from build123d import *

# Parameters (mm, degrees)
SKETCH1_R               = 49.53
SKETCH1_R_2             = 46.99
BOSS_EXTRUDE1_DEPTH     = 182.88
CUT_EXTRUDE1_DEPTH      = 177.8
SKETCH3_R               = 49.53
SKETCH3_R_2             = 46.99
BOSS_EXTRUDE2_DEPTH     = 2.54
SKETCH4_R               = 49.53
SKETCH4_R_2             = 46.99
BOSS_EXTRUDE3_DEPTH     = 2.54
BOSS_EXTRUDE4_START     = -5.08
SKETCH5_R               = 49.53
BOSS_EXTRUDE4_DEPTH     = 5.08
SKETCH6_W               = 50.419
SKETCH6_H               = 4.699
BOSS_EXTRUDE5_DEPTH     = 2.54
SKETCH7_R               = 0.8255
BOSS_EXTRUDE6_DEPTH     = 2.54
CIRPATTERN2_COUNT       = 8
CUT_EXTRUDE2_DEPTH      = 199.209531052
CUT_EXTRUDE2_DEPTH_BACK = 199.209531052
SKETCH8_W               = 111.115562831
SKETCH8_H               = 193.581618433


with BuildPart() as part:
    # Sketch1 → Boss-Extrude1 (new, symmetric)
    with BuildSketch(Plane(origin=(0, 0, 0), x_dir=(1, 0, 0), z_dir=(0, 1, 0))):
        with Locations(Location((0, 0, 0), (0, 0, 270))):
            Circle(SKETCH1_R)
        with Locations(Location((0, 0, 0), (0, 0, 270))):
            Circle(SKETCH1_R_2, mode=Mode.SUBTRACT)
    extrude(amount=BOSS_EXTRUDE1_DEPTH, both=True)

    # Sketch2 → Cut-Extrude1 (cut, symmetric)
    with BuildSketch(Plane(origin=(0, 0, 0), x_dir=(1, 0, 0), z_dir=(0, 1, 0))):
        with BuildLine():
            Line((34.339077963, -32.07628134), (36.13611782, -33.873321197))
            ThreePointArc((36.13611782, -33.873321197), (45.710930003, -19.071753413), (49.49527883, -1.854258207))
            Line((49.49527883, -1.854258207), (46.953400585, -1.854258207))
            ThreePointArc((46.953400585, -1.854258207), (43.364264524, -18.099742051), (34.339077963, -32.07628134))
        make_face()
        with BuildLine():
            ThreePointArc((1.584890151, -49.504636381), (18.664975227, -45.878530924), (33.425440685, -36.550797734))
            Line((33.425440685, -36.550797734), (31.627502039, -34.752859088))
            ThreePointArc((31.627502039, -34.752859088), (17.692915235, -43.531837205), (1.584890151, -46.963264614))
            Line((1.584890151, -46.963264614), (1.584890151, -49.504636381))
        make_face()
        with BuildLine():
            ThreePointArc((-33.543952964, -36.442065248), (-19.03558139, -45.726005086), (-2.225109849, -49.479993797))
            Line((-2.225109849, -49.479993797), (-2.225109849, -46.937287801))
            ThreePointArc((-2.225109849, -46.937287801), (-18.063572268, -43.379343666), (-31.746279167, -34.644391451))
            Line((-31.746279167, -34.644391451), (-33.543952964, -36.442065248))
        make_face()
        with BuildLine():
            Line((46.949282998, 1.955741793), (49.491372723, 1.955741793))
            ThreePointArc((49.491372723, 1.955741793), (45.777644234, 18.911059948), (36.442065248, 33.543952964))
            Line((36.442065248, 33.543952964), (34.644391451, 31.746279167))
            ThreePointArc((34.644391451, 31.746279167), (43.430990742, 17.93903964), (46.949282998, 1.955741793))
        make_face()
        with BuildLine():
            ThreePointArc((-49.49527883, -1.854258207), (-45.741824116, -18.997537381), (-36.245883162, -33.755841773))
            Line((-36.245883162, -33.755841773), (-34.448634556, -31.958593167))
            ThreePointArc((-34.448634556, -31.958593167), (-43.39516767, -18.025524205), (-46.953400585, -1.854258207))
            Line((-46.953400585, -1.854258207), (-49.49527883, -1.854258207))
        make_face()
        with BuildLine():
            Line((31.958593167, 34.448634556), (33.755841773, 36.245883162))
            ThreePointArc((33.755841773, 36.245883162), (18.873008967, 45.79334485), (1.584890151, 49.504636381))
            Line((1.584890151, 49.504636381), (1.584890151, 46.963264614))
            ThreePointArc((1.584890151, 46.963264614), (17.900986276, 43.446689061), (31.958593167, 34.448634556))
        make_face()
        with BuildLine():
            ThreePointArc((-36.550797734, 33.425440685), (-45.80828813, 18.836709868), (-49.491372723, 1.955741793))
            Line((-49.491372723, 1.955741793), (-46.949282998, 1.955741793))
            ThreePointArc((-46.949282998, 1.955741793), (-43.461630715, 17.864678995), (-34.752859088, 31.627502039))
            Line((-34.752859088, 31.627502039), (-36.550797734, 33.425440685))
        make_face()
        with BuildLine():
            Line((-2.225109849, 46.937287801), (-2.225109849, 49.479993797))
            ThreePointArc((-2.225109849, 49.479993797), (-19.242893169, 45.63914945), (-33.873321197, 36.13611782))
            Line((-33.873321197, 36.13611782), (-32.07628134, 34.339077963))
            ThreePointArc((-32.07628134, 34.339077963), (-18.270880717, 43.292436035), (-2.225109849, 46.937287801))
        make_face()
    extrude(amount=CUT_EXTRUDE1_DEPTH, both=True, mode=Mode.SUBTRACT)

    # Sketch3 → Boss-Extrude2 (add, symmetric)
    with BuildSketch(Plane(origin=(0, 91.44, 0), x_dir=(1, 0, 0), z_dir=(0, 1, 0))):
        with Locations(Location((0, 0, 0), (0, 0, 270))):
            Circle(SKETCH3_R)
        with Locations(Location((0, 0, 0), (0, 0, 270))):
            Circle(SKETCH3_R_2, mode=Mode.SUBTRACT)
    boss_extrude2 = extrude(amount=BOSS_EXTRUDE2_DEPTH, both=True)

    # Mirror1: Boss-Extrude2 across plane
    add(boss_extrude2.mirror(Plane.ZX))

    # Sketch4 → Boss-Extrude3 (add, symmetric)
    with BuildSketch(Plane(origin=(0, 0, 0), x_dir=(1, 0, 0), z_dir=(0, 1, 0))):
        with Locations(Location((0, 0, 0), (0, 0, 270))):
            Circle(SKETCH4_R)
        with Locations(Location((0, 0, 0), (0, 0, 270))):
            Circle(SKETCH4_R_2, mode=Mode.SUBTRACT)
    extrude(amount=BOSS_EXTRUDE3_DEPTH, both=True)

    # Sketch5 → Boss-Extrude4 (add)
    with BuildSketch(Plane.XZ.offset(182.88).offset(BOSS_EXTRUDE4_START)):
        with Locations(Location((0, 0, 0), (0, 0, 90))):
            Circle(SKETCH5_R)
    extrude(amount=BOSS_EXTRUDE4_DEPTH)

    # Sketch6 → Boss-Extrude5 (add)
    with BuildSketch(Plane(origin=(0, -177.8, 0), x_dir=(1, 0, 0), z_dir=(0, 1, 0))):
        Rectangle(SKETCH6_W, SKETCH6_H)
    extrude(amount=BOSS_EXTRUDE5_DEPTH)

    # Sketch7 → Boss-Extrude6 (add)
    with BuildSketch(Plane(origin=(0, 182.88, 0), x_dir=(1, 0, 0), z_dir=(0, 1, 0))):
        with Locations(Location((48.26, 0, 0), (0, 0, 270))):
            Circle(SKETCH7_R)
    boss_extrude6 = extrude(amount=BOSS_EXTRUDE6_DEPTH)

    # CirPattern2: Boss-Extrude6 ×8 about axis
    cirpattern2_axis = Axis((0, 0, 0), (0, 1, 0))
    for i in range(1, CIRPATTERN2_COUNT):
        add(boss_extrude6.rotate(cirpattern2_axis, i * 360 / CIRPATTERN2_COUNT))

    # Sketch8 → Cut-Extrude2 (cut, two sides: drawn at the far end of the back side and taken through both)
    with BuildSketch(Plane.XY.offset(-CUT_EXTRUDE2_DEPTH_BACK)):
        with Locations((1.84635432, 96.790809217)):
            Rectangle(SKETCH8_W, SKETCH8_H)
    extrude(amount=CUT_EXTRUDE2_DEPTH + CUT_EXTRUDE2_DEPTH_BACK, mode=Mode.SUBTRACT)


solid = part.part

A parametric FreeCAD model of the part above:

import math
import FreeCAD as App
import Part
import Sketcher
Q = App.Units.Quantity


def add_polygon(sketch, points):
    """Adds a closed chain of lines whose ends are joined by coincident constraints."""
    first, n = sketch.GeometryCount, len(points)
    for a, b in zip(points, points[1:] + points[:1]):
        sketch.addGeometry(Part.LineSegment(App.Vector(*a, 0), App.Vector(*b, 0)), False)
    for i in range(n):
        sketch.addConstraint(Sketcher.Constraint("Coincident", first + i, 2, first + (i + 1) % n, 1))

doc = App.newDocument("Part")
body = doc.addObject("PartDesign::Body", "Body")

# Sketch on XZ plane
sketch1 = body.newObject("Sketcher::SketchObject", "Sketch")
sketch1.AttachmentSupport = (doc.getObject("XZ_Plane"), [""])
sketch1.MapMode = "FlatFace"
sketch1.addGeometry([
    Part.Circle(App.Vector(0, 0, 0), App.Vector(0, 0, 1), 49.53),
    Part.Circle(App.Vector(0, 0, 0), App.Vector(0, 0, 1), 46.99),
], False)
sketch1.addConstraint([
    Sketcher.Constraint("Coincident", 0, 3, -1, 1),
    Sketcher.Constraint("Coincident", 1, 3, -1, 1),
    Sketcher.Constraint("Diameter", 0, Q("3.9 in")),
    Sketcher.Constraint("Diameter", 1, Q("3.7 in")),
])
pad1 = body.newObject("PartDesign::Pad", "Pad")
pad1.Profile = sketch1
pad1.Length = Q("14.4 in")
pad1.Midplane = True

# Sketch on XZ plane
sketch2 = body.newObject("Sketcher::SketchObject", "Sketch001")
sketch2.AttachmentSupport = (doc.getObject("XZ_Plane"), [""])
sketch2.MapMode = "FlatFace"
sketch2.addGeometry([
    Part.LineSegment(App.Vector(34.339078, 32.076281, 0), App.Vector(36.136118, 33.873321, 0)),  # 0
    Part.ArcOfCircle(Part.Circle(App.Vector(0, 0, 0), App.Vector(0, 0, 1), 49.53), math.radians(2.145488), math.radians(43.14877)),  # 1
    Part.LineSegment(App.Vector(49.495279, 1.854258, 0), App.Vector(46.953401, 1.854258, 0)),  # 2
    Part.ArcOfCircle(Part.Circle(App.Vector(0, 0, 0), App.Vector(0, 0, 1), 46.99), math.radians(2.261519), math.radians(43.048666)),  # 3
    Part.ArcOfCircle(Part.Circle(App.Vector(0, 0, 0), App.Vector(0, 0, 1), 49.53), math.radians(47.557309), math.radians(88.166303)),  # 4
    Part.LineSegment(App.Vector(33.425441, 36.550798, 0), App.Vector(31.627502, 34.752859, 0)),  # 5
    Part.ArcOfCircle(Part.Circle(App.Vector(0, 0, 0), App.Vector(0, 0, 1), 46.99), math.radians(47.695641), math.radians(88.067147)),  # 6
    Part.LineSegment(App.Vector(1.58489, 46.963265, 0), App.Vector(1.58489, 49.504636, 0)),  # 7
    Part.ArcOfCircle(Part.Circle(App.Vector(0, 0, 0), App.Vector(0, 0, 1), 49.53), math.radians(92.57485), math.radians(132.628744)),  # 8
    Part.LineSegment(App.Vector(-2.22511, 49.479994, 0), App.Vector(-2.22511, 46.937288, 0)),  # 9
    Part.ArcOfCircle(Part.Circle(App.Vector(0, 0, 0), App.Vector(0, 0, 1), 46.99), math.radians(92.714133), math.radians(132.500488)),  # 10
    Part.LineSegment(App.Vector(-31.746279, 34.644391, 0), App.Vector(-33.543953, 36.442065, 0)),  # 11
    Part.LineSegment(App.Vector(46.949283, -1.955742, 0), App.Vector(49.491373, -1.955742, 0)),  # 12
    Part.ArcOfCircle(Part.Circle(App.Vector(0, 0, 0), App.Vector(0, 0, 1), 49.53), math.radians(-42.628744), math.radians(-2.26297)),  # 13
    Part.LineSegment(App.Vector(36.442065, -33.543953, 0), App.Vector(34.644391, -31.746279, 0)),  # 14
    Part.ArcOfCircle(Part.Circle(App.Vector(0, 0, 0), App.Vector(0, 0, 1), 46.99), math.radians(-42.500488), math.radians(-2.385361)),  # 15
    Part.ArcOfCircle(Part.Circle(App.Vector(0, 0, 0), App.Vector(0, 0, 1), 49.53), math.radians(137.037217), math.radians(177.854512)),  # 16
    Part.LineSegment(App.Vector(-36.245883, 33.755842, 0), App.Vector(-34.448635, 31.958593, 0)),  # 17
    Part.ArcOfCircle(Part.Circle(App.Vector(0, 0, 0), App.Vector(0, 0, 1), 46.99), math.radians(137.147388), math.radians(177.738481)),  # 18
    Part.LineSegment(App.Vector(-46.953401, 1.854258, 0), App.Vector(-49.495279, 1.854258, 0)),  # 19
    Part.LineSegment(App.Vector(31.958593, -34.448635, 0), App.Vector(33.755842, -36.245883, 0)),  # 20
    Part.ArcOfCircle(Part.Circle(App.Vector(0, 0, 0), App.Vector(0, 0, 1), 49.53), math.radians(-88.166303), math.radians(-47.037217)),  # 21
    Part.LineSegment(App.Vector(1.58489, -49.504636, 0), App.Vector(1.58489, -46.963265, 0)),  # 22
    Part.ArcOfCircle(Part.Circle(App.Vector(0, 0, 0), App.Vector(0, 0, 1), 46.99), math.radians(-88.067147), math.radians(-47.147388)),  # 23
    Part.ArcOfCircle(Part.Circle(App.Vector(0, 0, 0), App.Vector(0, 0, 1), 49.53), math.radians(-177.73703), math.radians(-137.557309)),  # 24
    Part.LineSegment(App.Vector(-49.491373, -1.955742, 0), App.Vector(-46.949283, -1.955742, 0)),  # 25
    Part.ArcOfCircle(Part.Circle(App.Vector(0, 0, 0), App.Vector(0, 0, 1), 46.99), math.radians(-177.614639), math.radians(-137.695641)),  # 26
    Part.LineSegment(App.Vector(-34.752859, -31.627502, 0), App.Vector(-36.550798, -33.425441, 0)),  # 27
    Part.LineSegment(App.Vector(-2.22511, -46.937288, 0), App.Vector(-2.22511, -49.479994, 0)),  # 28
    Part.ArcOfCircle(Part.Circle(App.Vector(0, 0, 0), App.Vector(0, 0, 1), 49.53), math.radians(-133.14877), math.radians(-92.57485)),  # 29
    Part.LineSegment(App.Vector(-33.873321, -36.136118, 0), App.Vector(-32.076281, -34.339078, 0)),  # 30
    Part.ArcOfCircle(Part.Circle(App.Vector(0, 0, 0), App.Vector(0, 0, 1), 46.99), math.radians(-133.048666), math.radians(-92.714133)),  # 31
], False)
sketch2.addConstraint([
    Sketcher.Constraint("Coincident", 0, 2, 1, 2),
    Sketcher.Constraint("Coincident", 1, 1, 2, 1),
    Sketcher.Constraint("Coincident", 2, 2, 3, 1),
    Sketcher.Constraint("Coincident", 3, 2, 0, 1),
    Sketcher.Constraint("Coincident", 4, 1, 5, 1),
    Sketcher.Constraint("Coincident", 5, 2, 6, 1),
    Sketcher.Constraint("Coincident", 6, 2, 7, 1),
    Sketcher.Constraint("Coincident", 7, 2, 4, 2),
    Sketcher.Constraint("Coincident", 8, 1, 9, 1),
    Sketcher.Constraint("Coincident", 9, 2, 10, 1),
    Sketcher.Constraint("Coincident", 10, 2, 11, 1),
    Sketcher.Constraint("Coincident", 11, 2, 8, 2),
    Sketcher.Constraint("Coincident", 12, 2, 13, 2),
    Sketcher.Constraint("Coincident", 13, 1, 14, 1),
    Sketcher.Constraint("Coincident", 14, 2, 15, 1),
    Sketcher.Constraint("Coincident", 15, 2, 12, 1),
    Sketcher.Constraint("Coincident", 16, 1, 17, 1),
    Sketcher.Constraint("Coincident", 17, 2, 18, 1),
    Sketcher.Constraint("Coincident", 18, 2, 19, 1),
    Sketcher.Constraint("Coincident", 19, 2, 16, 2),
    Sketcher.Constraint("Coincident", 20, 2, 21, 2),
    Sketcher.Constraint("Coincident", 21, 1, 22, 1),
    Sketcher.Constraint("Coincident", 22, 2, 23, 1),
    Sketcher.Constraint("Coincident", 23, 2, 20, 1),
    Sketcher.Constraint("Coincident", 24, 1, 25, 1),
    Sketcher.Constraint("Coincident", 25, 2, 26, 1),
    Sketcher.Constraint("Coincident", 26, 2, 27, 1),
    Sketcher.Constraint("Coincident", 27, 2, 24, 2),
    Sketcher.Constraint("Coincident", 28, 2, 29, 2),
    Sketcher.Constraint("Coincident", 29, 1, 30, 1),
    Sketcher.Constraint("Coincident", 30, 2, 31, 1),
    Sketcher.Constraint("Coincident", 31, 2, 28, 1),
    Sketcher.Constraint("Horizontal", 2),
    Sketcher.Constraint("Vertical", 7),
    Sketcher.Constraint("Vertical", 9),
    Sketcher.Constraint("Horizontal", 12),
    Sketcher.Constraint("Horizontal", 19),
    Sketcher.Constraint("Vertical", 22),
    Sketcher.Constraint("Horizontal", 25),
    Sketcher.Constraint("Vertical", 28),
    Sketcher.Constraint("Coincident", 1, 3, -1, 1),
    Sketcher.Constraint("Coincident", 3, 3, -1, 1),
    Sketcher.Constraint("Coincident", 4, 3, -1, 1),
    Sketcher.Constraint("Coincident", 6, 3, -1, 1),
    Sketcher.Constraint("Coincident", 8, 3, -1, 1),
    Sketcher.Constraint("Coincident", 10, 3, -1, 1),
    Sketcher.Constraint("Coincident", 13, 3, -1, 1),
    Sketcher.Constraint("Coincident", 15, 3, -1, 1),
    Sketcher.Constraint("Coincident", 16, 3, -1, 1),
    Sketcher.Constraint("Coincident", 18, 3, -1, 1),
    Sketcher.Constraint("Coincident", 21, 3, -1, 1),
    Sketcher.Constraint("Coincident", 23, 3, -1, 1),
    Sketcher.Constraint("Coincident", 24, 3, -1, 1),
    Sketcher.Constraint("Coincident", 26, 3, -1, 1),
    Sketcher.Constraint("Coincident", 29, 3, -1, 1),
    Sketcher.Constraint("Coincident", 31, 3, -1, 1),
    Sketcher.Constraint("Equal", 1, 4),
    Sketcher.Constraint("Equal", 3, 6),
    Sketcher.Constraint("Equal", 4, 8),
    Sketcher.Constraint("Equal", 6, 10),
    Sketcher.Constraint("Equal", 8, 13),
    Sketcher.Constraint("Equal", 10, 15),
    Sketcher.Constraint("Equal", 13, 16),
    Sketcher.Constraint("Equal", 15, 18),
    Sketcher.Constraint("Equal", 16, 21),
    Sketcher.Constraint("Equal", 18, 23),
    Sketcher.Constraint("Equal", 21, 24),
    Sketcher.Constraint("Equal", 23, 26),
    Sketcher.Constraint("Equal", 24, 29),
    Sketcher.Constraint("Equal", 26, 31),
    Sketcher.Constraint("Parallel", 0, 5),
    Sketcher.Constraint("Perpendicular", 5, 11),
    Sketcher.Constraint("Parallel", 11, 14),
    Sketcher.Constraint("Parallel", 14, 17),
    Sketcher.Constraint("Parallel", 17, 20),
    Sketcher.Constraint("Perpendicular", 20, 27),
    Sketcher.Constraint("Parallel", 27, 30),
    Sketcher.Constraint("Horizontal", 2, 2, 18, 2),
    Sketcher.Constraint("Horizontal", 15, 2, 24, 1),
    Sketcher.Constraint("Vertical", 7, 2, 21, 1),
    Sketcher.Constraint("Vertical", 9, 2, 28, 2),
    Sketcher.Constraint("Equal", 11, 14),
    Sketcher.Constraint("Radius", 1, Q("1.95 in")),
    Sketcher.Constraint("Radius", 3, Q("1.85 in")),
    Sketcher.Constraint("Angle", 0, Q("45 deg")),
    Sketcher.Constraint("DistanceX", 8, 1, 7, 2, Q("0.15 in")),
    Sketcher.Constraint("DistanceY", 12, 2, 1, 1, Q("0.15 in")),
    Sketcher.Constraint("DistanceX", -1, 1, 2, 2, Q("46.953401 mm")),
    Sketcher.Constraint("DistanceX", 3, 2, 1, 1, Q("15.156201 mm")),
    Sketcher.Constraint("DistanceX", 5, 2, 2, 2, Q("15.325899 mm")),
    Sketcher.Constraint("DistanceY", 11, 2, 6, 2, Q("10.521199 mm")),
    Sketcher.Constraint("DistanceY", 17, 2, 10, 2, Q("2.685798 mm")),
    Sketcher.Constraint("DistanceY", 17, 2, 8, 1, Q("17.521401 mm")),
    Sketcher.Constraint("DistanceX", 23, 2, 14, 2, Q("2.685798 mm")),
    Sketcher.Constraint("DistanceY", 27, 2, 25, 2, Q("31.469699 mm")),
    Sketcher.Constraint("DistanceX", 25, 2, 30, 2, Q("14.873002 mm")),
])
pocket1 = body.newObject("PartDesign::Pocket", "Pocket")
pocket1.Profile = sketch2
pocket1.Length = Q("14 in")
pocket1.Midplane = True

# Sketch on XZ plane
sketch3 = body.newObject("Sketcher::SketchObject", "Sketch002")
sketch3.AttachmentSupport = (doc.getObject("XZ_Plane"), [""])
sketch3.MapMode = "FlatFace"
sketch3.AttachmentOffset = App.Placement(App.Vector(0, 0, -3.6 * 25.4), App.Rotation())
sketch3.addGeometry([
    Part.Circle(App.Vector(0, 0, 0), App.Vector(0, 0, 1), 49.53),
    Part.Circle(App.Vector(0, 0, 0), App.Vector(0, 0, 1), 46.99),
], False)
sketch3.addConstraint([
    Sketcher.Constraint("Coincident", 0, 3, -1, 1),
    Sketcher.Constraint("Coincident", 1, 3, -1, 1),
    Sketcher.Constraint("Diameter", 0, Q("3.9 in")),
    Sketcher.Constraint("Diameter", 1, Q("3.7 in")),
])
pad2 = body.newObject("PartDesign::Pad", "Pad001")
pad2.Profile = sketch3
pad2.Length = Q("0.2 in")
pad2.Midplane = True
doc.recompute()

mirrored = body.newObject("PartDesign::Mirrored", "Mirrored")
mirrored.Originals = [pad2]
mirrored.MirrorPlane = (doc.getObject("XZ_Plane"), [""])
body.Tip = mirrored

# Sketch on XZ plane
sketch4 = body.newObject("Sketcher::SketchObject", "Sketch003")
sketch4.AttachmentSupport = (doc.getObject("XZ_Plane"), [""])
sketch4.MapMode = "FlatFace"
sketch4.addGeometry([
    Part.Circle(App.Vector(0, 0, 0), App.Vector(0, 0, 1), 49.53),
    Part.Circle(App.Vector(0, 0, 0), App.Vector(0, 0, 1), 46.99),
], False)
sketch4.addConstraint([
    Sketcher.Constraint("Coincident", 0, 3, -1, 1),
    Sketcher.Constraint("Coincident", 1, 3, -1, 1),
    Sketcher.Constraint("Diameter", 0, Q("3.9 in")),
    Sketcher.Constraint("Diameter", 1, Q("3.7 in")),
])
pad3 = body.newObject("PartDesign::Pad", "Pad002")
pad3.Profile = sketch4
pad3.Length = Q("0.2 in")
pad3.Midplane = True

# Sketch on XZ plane
sketch5 = body.newObject("Sketcher::SketchObject", "Sketch004")
sketch5.AttachmentSupport = (doc.getObject("XZ_Plane"), [""])
sketch5.MapMode = "FlatFace"
sketch5.AttachmentOffset = App.Placement(App.Vector(0, 0, 7 * 25.4), App.Rotation())
sketch5.addGeometry(Part.Circle(App.Vector(0, 0, 0), App.Vector(0, 0, 1), 49.53), False)
sketch5.addConstraint([
    Sketcher.Constraint("Coincident", 0, 3, -1, 1),
    Sketcher.Constraint("Diameter", 0, Q("3.9 in")),
])
pad4 = body.newObject("PartDesign::Pad", "Pad003")
pad4.Profile = sketch5
pad4.Length = Q("0.2 in")

# Sketch on XZ plane
sketch6 = body.newObject("Sketcher::SketchObject", "Sketch005")
sketch6.AttachmentSupport = (doc.getObject("XZ_Plane"), [""])
sketch6.MapMode = "FlatFace"
sketch6.AttachmentOffset = App.Placement(App.Vector(0, 0, 7 * 25.4), App.Rotation())
add_polygon(sketch6, [(-25.2095, -2.3495), (-25.2095, 2.3495), (25.2095, 2.3495), (25.2095, -2.3495)])  # lines 0-3
sketch6.addConstraint([
    Sketcher.Constraint("Vertical", 0),
    Sketcher.Constraint("Horizontal", 1),
    Sketcher.Constraint("Vertical", 2),
    Sketcher.Constraint("Horizontal", 3),
    Sketcher.Constraint("Symmetric", 0, 2, 2, 2, -1, 1),
    Sketcher.Constraint("DistanceX", 1, 1, 1, 2, Q("1.985 in")),
    Sketcher.Constraint("DistanceY", 0, 1, 0, 2, Q("0.185 in")),
])
pad5 = body.newObject("PartDesign::Pad", "Pad004")
pad5.Profile = sketch6
pad5.Length = Q("0.1 in")
pad5.Reversed = True

# Sketch on XZ plane
sketch7 = body.newObject("Sketcher::SketchObject", "Sketch006")
sketch7.AttachmentSupport = (doc.getObject("XZ_Plane"), [""])
sketch7.MapMode = "FlatFace"
sketch7.AttachmentOffset = App.Placement(App.Vector(0, 0, -7.2 * 25.4), App.Rotation())
sketch7.addGeometry(Part.Circle(App.Vector(48.26, 0, 0), App.Vector(0, 0, 1), 0.8255), False)
sketch7.addConstraint([
    Sketcher.Constraint("PointOnObject", 0, 3, -1),
    Sketcher.Constraint("Diameter", 0, Q("0.065 in")),
    Sketcher.Constraint("DistanceX", -1, 1, 0, 3, Q("1.9 in")),
])
pad6 = body.newObject("PartDesign::Pad", "Pad005")
pad6.Profile = sketch7
pad6.Length = Q("0.1 in")
pad6.Reversed = True
doc.recompute()

polarpattern = body.newObject("PartDesign::PolarPattern", "PolarPattern")
polarpattern.Originals = [pad6]
polarpattern.Axis = (doc.getObject("Y_Axis"), [""])
polarpattern.Angle = 360
polarpattern.Occurrences = 8
body.Tip = polarpattern

# Sketch on XY plane
sketch8 = body.newObject("Sketcher::SketchObject", "Sketch007")
sketch8.AttachmentSupport = (doc.getObject("XY_Plane"), [""])
sketch8.MapMode = "FlatFace"
add_polygon(sketch8, [(-53.711427, 193.581618), (-53.711427, 0), (57.404136, 0), (57.404136, 193.581618)])  # lines 0-3
sketch8.addConstraint([
    Sketcher.Constraint("Vertical", 0),
    Sketcher.Constraint("Horizontal", 1),
    Sketcher.Constraint("Vertical", 2),
    Sketcher.Constraint("Horizontal", 3),
    Sketcher.Constraint("PointOnObject", 0, 2, -1),
    Sketcher.Constraint("DistanceY", 0, 2, 0, 1, Q("193.581618 mm")),
    Sketcher.Constraint("DistanceX", 1, 1, 1, 2, Q("111.115563 mm")),
    Sketcher.Constraint("DistanceX", 0, 2, -1, 1, Q("53.711427 mm")),
])
pocket2 = body.newObject("PartDesign::Pocket", "Pocket001")
pocket2.Profile = sketch8
pocket2.Type = "ThroughAll"
pocket2.Midplane = True

doc.recompute()
